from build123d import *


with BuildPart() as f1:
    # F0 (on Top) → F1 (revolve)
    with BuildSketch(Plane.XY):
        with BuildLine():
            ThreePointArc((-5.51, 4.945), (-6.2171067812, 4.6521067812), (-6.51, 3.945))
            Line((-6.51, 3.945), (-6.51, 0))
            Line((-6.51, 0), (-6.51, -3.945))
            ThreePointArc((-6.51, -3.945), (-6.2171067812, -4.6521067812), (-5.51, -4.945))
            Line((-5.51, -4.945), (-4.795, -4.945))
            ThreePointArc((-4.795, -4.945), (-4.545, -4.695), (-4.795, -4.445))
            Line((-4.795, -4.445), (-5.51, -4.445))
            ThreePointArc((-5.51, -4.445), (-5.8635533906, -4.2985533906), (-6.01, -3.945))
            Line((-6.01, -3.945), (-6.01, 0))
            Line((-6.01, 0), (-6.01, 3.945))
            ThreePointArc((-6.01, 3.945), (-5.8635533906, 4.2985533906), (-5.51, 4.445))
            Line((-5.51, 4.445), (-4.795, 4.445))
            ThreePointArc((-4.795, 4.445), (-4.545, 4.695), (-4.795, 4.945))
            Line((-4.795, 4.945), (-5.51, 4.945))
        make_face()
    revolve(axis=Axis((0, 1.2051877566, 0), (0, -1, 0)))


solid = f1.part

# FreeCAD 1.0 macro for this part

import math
import FreeCAD as App
import Part
import Sketcher

doc = App.newDocument("Part")
body = doc.addObject("PartDesign::Body", "Body")

# Sketch on XY plane
sketch1 = body.newObject("Sketcher::SketchObject", "Sketch")
sketch1.AttachmentSupport = (doc.getObject("XY_Plane"), [""])
sketch1.MapMode = "FlatFace"
sketch1.addGeometry([
    Part.ArcOfCircle(Part.Circle(App.Vector(-5.51, 3.94, 0), App.Vector(0, 0, 1), 1), math.radians(90), math.radians(180)),  # 0
    Part.LineSegment(App.Vector(-6.51, 3.94, 0), App.Vector(-6.51, -3.94, 0)),  # 1
    Part.ArcOfCircle(Part.Circle(App.Vector(-5.51, -3.94, 0), App.Vector(0, 0, 1), 1), math.radians(180), math.radians(270)),  # 2
    Part.LineSegment(App.Vector(-5.51, -4.95, 0), App.Vector(-4.79, -4.95, 0)),  # 3
    Part.ArcOfCircle(Part.Circle(App.Vector(-4.79, -4.7, 0), App.Vector(0, 0, 1), 0.25), math.radians(-90), math.radians(90)),  # 4
    Part.LineSegment(App.Vector(-4.79, -4.45, 0), App.Vector(-5.51, -4.45, 0)),  # 5
    Part.ArcOfCircle(Part.Circle(App.Vector(-5.51, -3.94, 0), App.Vector(0, 0, 1), 0.5), math.radians(180), math.radians(270)),  # 6
    Part.LineSegment(App.Vector(-6.01, -3.94, 0), App.Vector(-6.01, 3.94, 0)),  # 7
    Part.ArcOfCircle(Part.Circle(App.Vector(-5.51, 3.94, 0), App.Vector(0, 0, 1), 0.5), math.radians(90), math.radians(180)),  # 8
    Part.LineSegment(App.Vector(-5.51, 4.45, 0), App.Vector(-4.79, 4.45, 0)),  # 9
    Part.ArcOfCircle(Part.Circle(App.Vector(-4.79, 4.7, 0), App.Vector(0, 0, 1), 0.25), math.radians(-90), math.radians(90)),  # 10
    Part.LineSegment(App.Vector(-4.79, 4.95, 0), App.Vector(-5.51, 4.95, 0)),  # 11
], False)
sketch1.addConstraint([
    Sketcher.Constraint("Tangent", 0, 2, 1, 1),
    Sketcher.Constraint("Tangent", 1, 2, 2, 1),
    Sketcher.Constraint("Tangent", 2, 2, 3, 1),
    Sketcher.Constraint("Tangent", 3, 2, 4, 1),
    Sketcher.Constraint("Tangent", 4, 2, 5, 1),
    Sketcher.Constraint("Tangent", 5, 2, 6, 2),
    Sketcher.Constraint("Tangent", 6, 1, 7, 1),
    Sketcher.Constraint("Tangent", 7, 2, 8, 2),
    Sketcher.Constraint("Tangent", 8, 1, 9, 1),
    Sketcher.Constraint("Tangent", 9, 2, 10, 1),
    Sketcher.Constraint("Tangent", 10, 2, 11, 1),
    Sketcher.Constraint("Tangent", 11, 2, 0, 1),
    Sketcher.Constraint("Vertical", 1),
    Sketcher.Constraint("Horizontal", 3),
    Sketcher.Constraint("Horizontal", 5),
    Sketcher.Constraint("Vertical", 7),
    Sketcher.Constraint("Horizontal", 9),
    Sketcher.Constraint("Horizontal", 11),
    Sketcher.Constraint("Coincident", 6, 3, 2, 3),
    Sketcher.Constraint("Coincident", 8, 3, 0, 3),
    Sketcher.Constraint("Equal", 0, 2),
    Sketcher.Constraint("Symmetric", 4, 3, 10, 3, -1),
    Sketcher.Constraint("Radius", 0, 1.0),
    Sketcher.Constraint("Radius", 6, 0.5),
    Sketcher.Constraint("DistanceY", 1, 2, 1, 1, 7.89),
    Sketcher.Constraint("DistanceX", 3, 1, 3, 2, 0.715),
    Sketcher.Constraint("DistanceX", 0, 3, -1, 1, 5.51),
])
revolution = body.newObject("PartDesign::Revolution", "Revolution")
revolution.Profile = sketch1
revolution.ReferenceAxis = (sketch1, ["V_Axis"])
revolution.Angle = 360

doc.recompute()
